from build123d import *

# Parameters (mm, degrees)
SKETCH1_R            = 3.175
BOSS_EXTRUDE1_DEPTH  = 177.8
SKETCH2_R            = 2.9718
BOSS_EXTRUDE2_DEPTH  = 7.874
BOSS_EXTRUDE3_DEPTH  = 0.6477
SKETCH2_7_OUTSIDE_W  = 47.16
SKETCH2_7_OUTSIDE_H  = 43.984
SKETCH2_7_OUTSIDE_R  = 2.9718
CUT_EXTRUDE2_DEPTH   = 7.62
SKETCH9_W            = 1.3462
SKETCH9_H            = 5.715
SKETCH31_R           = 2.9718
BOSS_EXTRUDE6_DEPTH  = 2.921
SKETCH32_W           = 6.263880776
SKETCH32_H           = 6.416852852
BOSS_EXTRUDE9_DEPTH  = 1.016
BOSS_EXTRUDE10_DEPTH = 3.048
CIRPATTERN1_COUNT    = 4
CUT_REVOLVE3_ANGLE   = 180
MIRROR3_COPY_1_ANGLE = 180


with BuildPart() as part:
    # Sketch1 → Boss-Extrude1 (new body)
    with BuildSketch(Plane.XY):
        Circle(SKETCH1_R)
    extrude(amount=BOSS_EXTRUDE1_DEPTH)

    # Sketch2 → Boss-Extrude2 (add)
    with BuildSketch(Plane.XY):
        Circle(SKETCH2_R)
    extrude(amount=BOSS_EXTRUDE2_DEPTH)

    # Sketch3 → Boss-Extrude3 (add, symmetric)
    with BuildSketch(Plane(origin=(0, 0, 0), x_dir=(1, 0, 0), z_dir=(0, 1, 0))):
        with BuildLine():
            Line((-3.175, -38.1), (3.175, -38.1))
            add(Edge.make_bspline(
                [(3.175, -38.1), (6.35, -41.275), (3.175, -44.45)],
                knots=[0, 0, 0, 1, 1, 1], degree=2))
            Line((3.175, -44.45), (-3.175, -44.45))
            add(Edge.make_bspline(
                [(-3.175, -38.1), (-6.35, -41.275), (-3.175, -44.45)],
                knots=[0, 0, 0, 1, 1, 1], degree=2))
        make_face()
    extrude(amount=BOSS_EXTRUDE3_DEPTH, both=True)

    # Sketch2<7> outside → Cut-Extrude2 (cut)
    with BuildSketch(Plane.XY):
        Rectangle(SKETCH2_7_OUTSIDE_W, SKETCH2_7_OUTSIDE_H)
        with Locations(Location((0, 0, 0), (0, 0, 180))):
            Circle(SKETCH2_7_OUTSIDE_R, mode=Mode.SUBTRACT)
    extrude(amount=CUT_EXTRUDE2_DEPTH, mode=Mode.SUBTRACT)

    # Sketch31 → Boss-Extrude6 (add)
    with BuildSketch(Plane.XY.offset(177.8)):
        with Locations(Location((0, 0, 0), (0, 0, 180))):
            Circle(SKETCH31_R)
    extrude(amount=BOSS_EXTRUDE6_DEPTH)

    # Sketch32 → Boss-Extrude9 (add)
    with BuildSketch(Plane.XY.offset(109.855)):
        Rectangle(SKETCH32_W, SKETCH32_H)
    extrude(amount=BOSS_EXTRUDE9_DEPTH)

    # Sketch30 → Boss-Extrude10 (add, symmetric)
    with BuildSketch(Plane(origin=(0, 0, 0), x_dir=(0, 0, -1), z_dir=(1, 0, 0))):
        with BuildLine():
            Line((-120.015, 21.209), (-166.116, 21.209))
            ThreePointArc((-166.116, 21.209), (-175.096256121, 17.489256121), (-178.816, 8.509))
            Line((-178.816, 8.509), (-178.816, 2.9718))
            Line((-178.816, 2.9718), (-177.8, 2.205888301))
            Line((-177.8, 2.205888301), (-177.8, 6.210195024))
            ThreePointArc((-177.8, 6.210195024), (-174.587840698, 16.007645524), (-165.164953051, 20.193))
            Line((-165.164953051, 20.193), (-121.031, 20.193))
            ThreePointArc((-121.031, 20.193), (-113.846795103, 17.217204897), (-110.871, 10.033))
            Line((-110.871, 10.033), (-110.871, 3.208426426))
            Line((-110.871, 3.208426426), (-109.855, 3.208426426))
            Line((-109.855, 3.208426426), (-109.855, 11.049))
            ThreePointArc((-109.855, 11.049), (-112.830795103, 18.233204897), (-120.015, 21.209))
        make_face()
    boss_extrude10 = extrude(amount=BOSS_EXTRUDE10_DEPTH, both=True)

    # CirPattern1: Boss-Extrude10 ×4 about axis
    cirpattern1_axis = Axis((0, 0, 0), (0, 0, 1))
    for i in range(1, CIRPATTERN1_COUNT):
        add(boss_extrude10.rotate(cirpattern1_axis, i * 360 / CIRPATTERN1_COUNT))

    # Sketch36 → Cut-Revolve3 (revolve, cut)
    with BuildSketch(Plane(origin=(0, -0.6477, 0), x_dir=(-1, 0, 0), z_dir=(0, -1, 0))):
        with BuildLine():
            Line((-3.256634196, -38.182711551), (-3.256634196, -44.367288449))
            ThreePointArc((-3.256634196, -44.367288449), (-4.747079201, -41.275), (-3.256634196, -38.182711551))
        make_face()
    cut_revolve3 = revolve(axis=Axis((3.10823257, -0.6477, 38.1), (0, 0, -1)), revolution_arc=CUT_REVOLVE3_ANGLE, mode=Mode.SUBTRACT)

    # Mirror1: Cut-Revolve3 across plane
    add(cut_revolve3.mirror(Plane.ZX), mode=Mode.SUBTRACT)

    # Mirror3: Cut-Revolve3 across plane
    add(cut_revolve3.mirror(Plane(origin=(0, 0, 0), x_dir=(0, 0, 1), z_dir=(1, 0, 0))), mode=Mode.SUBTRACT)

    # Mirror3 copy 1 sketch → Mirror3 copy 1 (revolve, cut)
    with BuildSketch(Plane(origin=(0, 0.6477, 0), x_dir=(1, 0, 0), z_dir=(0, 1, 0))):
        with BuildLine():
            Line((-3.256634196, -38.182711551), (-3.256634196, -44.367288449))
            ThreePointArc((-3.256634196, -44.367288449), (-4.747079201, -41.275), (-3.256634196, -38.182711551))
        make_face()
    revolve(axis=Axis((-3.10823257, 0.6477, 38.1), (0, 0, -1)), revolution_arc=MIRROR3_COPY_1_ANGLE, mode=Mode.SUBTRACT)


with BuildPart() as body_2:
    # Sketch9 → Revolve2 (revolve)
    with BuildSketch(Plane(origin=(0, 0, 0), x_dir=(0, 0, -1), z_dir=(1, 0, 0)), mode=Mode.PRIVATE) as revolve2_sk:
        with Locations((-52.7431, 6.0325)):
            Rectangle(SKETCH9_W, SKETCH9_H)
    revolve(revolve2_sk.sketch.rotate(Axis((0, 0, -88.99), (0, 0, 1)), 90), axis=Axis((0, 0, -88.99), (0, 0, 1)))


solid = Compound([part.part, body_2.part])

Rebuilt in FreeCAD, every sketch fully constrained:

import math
import FreeCAD as App
import Part
import Sketcher

V = App.Vector
Q = App.Units.Quantity

doc = App.newDocument("Part")
body = doc.addObject("PartDesign::Body", "Body")

sketch1 = body.newObject("Sketcher::SketchObject", "Sketch")
sketch1.AttachmentSupport = (doc.getObject("XY_Plane"), [""])
sketch1.MapMode = "FlatFace"
sketch1.addGeometry(Part.Circle(V(0, 0, 0), V(0, 0, 1), 3.2), False)
sketch1.addConstraint([
    Sketcher.Constraint("Coincident", 0, 3, -1, 1),
    Sketcher.Constraint("Diameter", 0, Q("0.25 in")),
])
pad1 = body.newObject("PartDesign::Pad", "Pad")
pad1.Profile = sketch1
pad1.Length = Q("7 in")

sketch2 = body.newObject("Sketcher::SketchObject", "Sketch001")
sketch2.AttachmentSupport = (doc.getObject("XY_Plane"), [""])
sketch2.MapMode = "FlatFace"
sketch2.addGeometry(Part.Circle(V(0, 0, 0), V(0, 0, 1), 3), False)
sketch2.addConstraint([
    Sketcher.Constraint("Coincident", 0, 3, -1, 1),
    Sketcher.Constraint("Diameter", 0, Q("0.234 in")),
])
pad2 = body.newObject("PartDesign::Pad", "Pad001")
pad2.Profile = sketch2
pad2.Length = Q("0.31 in")

sketch3 = body.newObject("Sketcher::SketchObject", "Sketch002")
sketch3.AttachmentSupport = (doc.getObject("XZ_Plane"), [""])
sketch3.MapMode = "FlatFace"
sketch3.addGeometry([
    Part.LineSegment(V(3.175, 38.1, 0), V(-3.175, 38.1, 0)),
    Part.BSplineCurve([V(-3.175, 38.1, 0), V(-6.35, 41.275, 0), V(-3.175, 44.45, 0)], [3, 3], [0, 1], False, 2, [1, 1, 1], False),
    Part.LineSegment(V(-3.175, 44.45, 0), V(3.175, 44.45, 0)),
    Part.BSplineCurve([V(3.175, 38.1, 0), V(6.35, 41.275, 0), V(3.175, 44.45, 0)], [3, 3], [0, 1], False, 2, [1, 1, 1], False),
], False)
sketch3.addConstraint([
    Sketcher.Constraint("Block", 1),
    Sketcher.Constraint("Block", 3),
    Sketcher.Constraint("Coincident", 0, 2, 1, 1),
    Sketcher.Constraint("Coincident", 1, 2, 2, 1),
    Sketcher.Constraint("Coincident", 2, 2, 3, 2),
    Sketcher.Constraint("Coincident", 3, 1, 0, 1),
])
pad3 = body.newObject("PartDesign::Pad", "Pad002")
pad3.Profile = sketch3
pad3.Length = Q("0.051 in")
pad3.Midplane = True

sketch4 = body.newObject("Sketcher::SketchObject", "Sketch003")
sketch4.AttachmentSupport = (doc.getObject("XY_Plane"), [""])
sketch4.MapMode = "FlatFace"
sketch4.addGeometry([
    Part.LineSegment(V(-23.6, 22, 0), V(-23.6, -22, 0)),
    Part.LineSegment(V(-23.6, -22, 0), V(23.6, -22, 0)),
    Part.LineSegment(V(23.6, -22, 0), V(23.6, 22, 0)),
    Part.LineSegment(V(23.6, 22, 0), V(-23.6, 22, 0)),
    Part.Circle(V(0, 0, 0), V(0, 0, 1), 3),
], False)
sketch4.addConstraint([
    Sketcher.Constraint("Coincident", 0, 2, 1, 1),
    Sketcher.Constraint("Coincident", 1, 2, 2, 1),
    Sketcher.Constraint("Coincident", 2, 2, 3, 1),
    Sketcher.Constraint("Coincident", 3, 2, 0, 1),
    Sketcher.Constraint("Vertical", 0),
    Sketcher.Constraint("Horizontal", 1),
    Sketcher.Constraint("Vertical", 2),
    Sketcher.Constraint("Horizontal", 3),
    Sketcher.Constraint("Coincident", 4, 3, -1, 1),
    Sketcher.Constraint("Symmetric", 0, 2, 2, 2, -1, 1),
    Sketcher.Constraint("Diameter", 4, Q("0.234 in")),
    Sketcher.Constraint("DistanceX", 1, 1, 1, 2, Q("47.16 mm")),
    Sketcher.Constraint("DistanceY", 0, 2, 0, 1, Q("43.984 mm")),
])
pocket1 = body.newObject("PartDesign::Pocket", "Pocket")
pocket1.Profile = sketch4
pocket1.Length = Q("0.3 in")
pocket1.Reversed = True

sketch5 = body.newObject("Sketcher::SketchObject", "Sketch004")
sketch5.AttachmentSupport = (doc.getObject("XY_Plane"), [""])
sketch5.MapMode = "FlatFace"
sketch5.AttachmentOffset = App.Placement(V(0, 0, 7 * 25.4), App.Rotation())
sketch5.addGeometry(Part.Circle(V(0, 0, 0), V(0, 0, 1), 3), False)
sketch5.addConstraint([
    Sketcher.Constraint("Coincident", 0, 3, -1, 1),
    Sketcher.Constraint("Diameter", 0, Q("0.234 in")),
])
pad4 = body.newObject("PartDesign::Pad", "Pad003")
pad4.Profile = sketch5
pad4.Length = Q("0.115 in")

sketch6 = body.newObject("Sketcher::SketchObject", "Sketch005")
sketch6.AttachmentSupport = (doc.getObject("XY_Plane"), [""])
sketch6.MapMode = "FlatFace"
sketch6.AttachmentOffset = App.Placement(V(0, 0, 4.325 * 25.4), App.Rotation())
sketch6.addGeometry([
    Part.LineSegment(V(-3, 3, 0), V(-3, -3, 0)),
    Part.LineSegment(V(-3, -3, 0), V(3, -3, 0)),
    Part.LineSegment(V(3, -3, 0), V(3, 3, 0)),
    Part.LineSegment(V(3, 3, 0), V(-3, 3, 0)),
], False)
sketch6.addConstraint([
    Sketcher.Constraint("Coincident", 0, 2, 1, 1),
    Sketcher.Constraint("Coincident", 1, 2, 2, 1),
    Sketcher.Constraint("Coincident", 2, 2, 3, 1),
    Sketcher.Constraint("Coincident", 3, 2, 0, 1),
    Sketcher.Constraint("Vertical", 0),
    Sketcher.Constraint("Horizontal", 1),
    Sketcher.Constraint("Vertical", 2),
    Sketcher.Constraint("Horizontal", 3),
    Sketcher.Constraint("Symmetric", 0, 2, 2, 2, -1, 1),
    Sketcher.Constraint("DistanceX", 1, 1, 1, 2, Q("6.263881 mm")),
    Sketcher.Constraint("DistanceY", 0, 2, 0, 1, Q("6.416853 mm")),
])
pad5 = body.newObject("PartDesign::Pad", "Pad004")
pad5.Profile = sketch6
pad5.Length = Q("0.04 in")

sketch7 = body.newObject("Sketcher::SketchObject", "Sketch006")
sketch7.AttachmentSupport = (doc.getObject("YZ_Plane"), [""])
sketch7.MapMode = "FlatFace"
sketch7.addGeometry([
    Part.LineSegment(V(21.2, 120, 0), V(21.2, 166.1, 0)),
    Part.ArcOfCircle(Part.Circle(V(8.5, 166.1, 0), V(0, 0, 1), 12.7), math.radians(0), math.radians(90)),
    Part.LineSegment(V(8.5, 178.8, 0), V(3, 178.8, 0)),
    Part.LineSegment(V(3, 178.8, 0), V(2.2, 177.8, 0)),
    Part.LineSegment(V(2.2, 177.8, 0), V(6.2, 177.8, 0)),
    Part.ArcOfCircle(Part.Circle(V(7.5, 165.2, 0), V(0, 0, 1), 12.7), math.radians(0), math.radians(96)),
    Part.LineSegment(V(20.2, 165.2, 0), V(20.2, 121, 0)),
    Part.ArcOfCircle(Part.Circle(V(10, 121, 0), V(0, 0, 1), 10.2), math.radians(-90), math.radians(0)),
    Part.LineSegment(V(10, 110.9, 0), V(3.2, 110.9, 0)),
    Part.LineSegment(V(3.2, 110.9, 0), V(3.2, 109.9, 0)),
    Part.LineSegment(V(3.2, 109.9, 0), V(11, 109.9, 0)),
    Part.ArcOfCircle(Part.Circle(V(11, 120, 0), V(0, 0, 1), 10.2), math.radians(-90), math.radians(0)),
], False)
sketch7.addConstraint([
    Sketcher.Constraint("Tangent", 0, 2, 1, 1),
    Sketcher.Constraint("Tangent", 1, 2, 2, 1),
    Sketcher.Constraint("Coincident", 2, 2, 3, 1),
    Sketcher.Constraint("Coincident", 3, 2, 4, 1),
    Sketcher.Constraint("Coincident", 4, 2, 5, 2),
    Sketcher.Constraint("Tangent", 5, 1, 6, 1),
    Sketcher.Constraint("Tangent", 6, 2, 7, 2),
    Sketcher.Constraint("Tangent", 7, 1, 8, 1),
    Sketcher.Constraint("Coincident", 8, 2, 9, 1),
    Sketcher.Constraint("Coincident", 9, 2, 10, 1),
    Sketcher.Constraint("Tangent", 10, 2, 11, 1),
    Sketcher.Constraint("Tangent", 11, 2, 0, 1),
    Sketcher.Constraint("Vertical", 0),
    Sketcher.Constraint("Horizontal", 2),
    Sketcher.Constraint("Horizontal", 4),
    Sketcher.Constraint("Vertical", 6),
    Sketcher.Constraint("Horizontal", 8),
    Sketcher.Constraint("Vertical", 9),
    Sketcher.Constraint("Horizontal", 10),
    Sketcher.Constraint("Equal", 1, 5),
    Sketcher.Constraint("Equal", 7, 11),
    Sketcher.Constraint("Radius", 1, Q("0.5 in")),
    Sketcher.Constraint("Radius", 7, Q("0.4 in")),
    Sketcher.Constraint("DistanceY", -1, 1, 3, 2, Q("7 in")),
    Sketcher.Constraint("DistanceY", 9, 2, 9, 1, Q("0.04 in")),
    Sketcher.Constraint("DistanceX", 2, 2, 2, 1, Q("0.218 in")),
    Sketcher.Constraint("DistanceY", 0, 1, 0, 2, Q("1.815 in")),
    Sketcher.Constraint("DistanceY", -1, 1, 1, 3, Q("6.54 in")),
    Sketcher.Constraint("DistanceX", 5, 3, 1, 3, Q("0.04 in")),
    Sketcher.Constraint("DistanceX", -1, 1, 1, 3, Q("0.335 in")),
    Sketcher.Constraint("Distance", 3, Q("1.272351 mm")),
    Sketcher.Constraint("DistanceX", 4, 1, 4, 2, Q("4.004307 mm")),
    Sketcher.Constraint("DistanceX", 8, 2, 8, 1, Q("6.824574 mm")),
])
pad6 = body.newObject("PartDesign::Pad", "Pad005")
pad6.Profile = sketch7
pad6.Length = Q("0.24 in")
pad6.Midplane = True
doc.recompute()

polarpattern = body.newObject("PartDesign::PolarPattern", "PolarPattern")
polarpattern.Originals = [pad6]
polarpattern.Axis = (doc.getObject("Z_Axis"), [""])
polarpattern.Angle = 360
polarpattern.Occurrences = 4
body.Tip = polarpattern

sketch8 = body.newObject("Sketcher::SketchObject", "Sketch007")
sketch8.AttachmentSupport = (doc.getObject("XZ_Plane"), [""])
sketch8.MapMode = "FlatFace"
sketch8.AttachmentOffset = App.Placement(V(0, 0, 0.0255 * 25.4), App.Rotation())
sketch8.addGeometry([
    Part.LineSegment(V(3.3, 44.4, 0), V(3.3, 38.2, 0)),
    Part.ArcOfCircle(Part.Circle(V(0.8, 41.3, 0), V(0, 0, 1), 4), math.radians(-51), math.radians(51)),
], False)
sketch8.addGeometry(Part.LineSegment(V(3.1, 44.4, 0), V(3.1, 38.2, 0)), True)
sketch8.addConstraint([
    Sketcher.Constraint("Coincident", 0, 1, 1, 2),
    Sketcher.Constraint("Coincident", 1, 1, 0, 2),
    Sketcher.Constraint("Vertical", 0),
    Sketcher.Constraint("Vertical", 2),
    Sketcher.Constraint("Horizontal", 0, 1, 2, 1),
    Sketcher.Constraint("Horizontal", 1, 1, 2, 2),
    Sketcher.Constraint("DistanceY", -1, 1, 1, 3, Q("1.625 in")),
    Sketcher.Constraint("Radius", 1, Q("3.953072 mm")),
    Sketcher.Constraint("DistanceX", 2, 1, 0, 1, Q("0.148402 mm")),
    Sketcher.Constraint("DistanceY", 0, 2, 0, 1, Q("6.184577 mm")),
    Sketcher.Constraint("DistanceX", -1, 1, 1, 3, Q("0.794007 mm")),
])
groove = body.newObject("PartDesign::Groove", "Groove")
groove.Profile = sketch8
groove.ReferenceAxis = (sketch8, ["Axis0"])
groove.Angle = 180
doc.recompute()

mirrored = body.newObject("PartDesign::Mirrored", "Mirrored")
mirrored.Originals = [groove]
mirrored.MirrorPlane = (doc.getObject("XZ_Plane"), [""])
body.Tip = mirrored
doc.recompute()

mirrored2 = body.newObject("PartDesign::Mirrored", "Mirrored001")
mirrored2.Originals = [groove]
mirrored2.MirrorPlane = (doc.getObject("YZ_Plane"), [""])
body.Tip = mirrored2

sketch9 = body.newObject("Sketcher::SketchObject", "Sketch008")
sketch9.AttachmentSupport = (doc.getObject("XZ_Plane"), [""])
sketch9.MapMode = "FlatFace"
sketch9.AttachmentOffset = App.Placement(V(0, 0, -0.0255 * 25.4), App.Rotation())
sketch9.addGeometry([
    Part.LineSegment(V(-3.3, 44.4, 0), V(-3.3, 38.2, 0)),
    Part.ArcOfCircle(Part.Circle(V(-0.8, 41.3, 0), V(0, 0, 1), 4), math.radians(129), math.radians(231)),
], False)
sketch9.addGeometry(Part.LineSegment(V(-3.1, 44.4, 0), V(-3.1, 38.2, 0)), True)
sketch9.addConstraint([
    Sketcher.Constraint("Coincident", 0, 1, 1, 1),
    Sketcher.Constraint("Coincident", 1, 2, 0, 2),
    Sketcher.Constraint("Vertical", 0),
    Sketcher.Constraint("Vertical", 2),
    Sketcher.Constraint("Horizontal", 0, 1, 2, 1),
    Sketcher.Constraint("Horizontal", 1, 2, 2, 2),
    Sketcher.Constraint("DistanceY", -1, 1, 1, 3, Q("1.625 in")),
    Sketcher.Constraint("Radius", 1, Q("3.953072 mm")),
    Sketcher.Constraint("DistanceX", 0, 1, 2, 1, Q("0.148402 mm")),
    Sketcher.Constraint("DistanceY", 0, 2, 0, 1, Q("6.184577 mm")),
    Sketcher.Constraint("DistanceX", 1, 3, -1, 1, Q("0.794007 mm")),
])
groove2 = body.newObject("PartDesign::Groove", "Groove001")
groove2.Profile = sketch9
groove2.ReferenceAxis = (sketch9, ["Axis0"])
groove2.Angle = 180
body2 = doc.addObject("PartDesign::Body", "Body001")

sketch10 = body2.newObject("Sketcher::SketchObject", "Sketch009")
sketch10.AttachmentSupport = (doc.getObject("YZ_Plane001"), [""])
sketch10.MapMode = "FlatFace"
sketch10.addGeometry([
    Part.LineSegment(V(8.9, 53.4, 0), V(3.2, 53.4, 0)),
    Part.LineSegment(V(3.2, 53.4, 0), V(3.2, 52.1, 0)),
    Part.LineSegment(V(3.2, 52.1, 0), V(8.9, 52.1, 0)),
    Part.LineSegment(V(8.9, 52.1, 0), V(8.9, 53.4, 0)),
], False)
sketch10.addConstraint([
    Sketcher.Constraint("Coincident", 0, 2, 1, 1),
    Sketcher.Constraint("Coincident", 1, 2, 2, 1),
    Sketcher.Constraint("Coincident", 2, 2, 3, 1),
    Sketcher.Constraint("Coincident", 3, 2, 0, 1),
    Sketcher.Constraint("Horizontal", 0),
    Sketcher.Constraint("Vertical", 1),
    Sketcher.Constraint("Horizontal", 2),
    Sketcher.Constraint("Vertical", 3),
    Sketcher.Constraint("DistanceX", 0, 2, 0, 1, Q("0.225 in")),
    Sketcher.Constraint("DistanceY", 1, 2, 1, 1, Q("0.053 in")),
    Sketcher.Constraint("DistanceY", -1, 1, 1, 2, Q("2.05 in")),
    Sketcher.Constraint("DistanceX", -1, 1, 2, 2, Q("0.35 in")),
])
revolution = body2.newObject("PartDesign::Revolution", "Revolution")
revolution.Profile = sketch10
revolution.ReferenceAxis = (sketch10, ["V_Axis"])
revolution.Angle = 360

doc.recompute()
